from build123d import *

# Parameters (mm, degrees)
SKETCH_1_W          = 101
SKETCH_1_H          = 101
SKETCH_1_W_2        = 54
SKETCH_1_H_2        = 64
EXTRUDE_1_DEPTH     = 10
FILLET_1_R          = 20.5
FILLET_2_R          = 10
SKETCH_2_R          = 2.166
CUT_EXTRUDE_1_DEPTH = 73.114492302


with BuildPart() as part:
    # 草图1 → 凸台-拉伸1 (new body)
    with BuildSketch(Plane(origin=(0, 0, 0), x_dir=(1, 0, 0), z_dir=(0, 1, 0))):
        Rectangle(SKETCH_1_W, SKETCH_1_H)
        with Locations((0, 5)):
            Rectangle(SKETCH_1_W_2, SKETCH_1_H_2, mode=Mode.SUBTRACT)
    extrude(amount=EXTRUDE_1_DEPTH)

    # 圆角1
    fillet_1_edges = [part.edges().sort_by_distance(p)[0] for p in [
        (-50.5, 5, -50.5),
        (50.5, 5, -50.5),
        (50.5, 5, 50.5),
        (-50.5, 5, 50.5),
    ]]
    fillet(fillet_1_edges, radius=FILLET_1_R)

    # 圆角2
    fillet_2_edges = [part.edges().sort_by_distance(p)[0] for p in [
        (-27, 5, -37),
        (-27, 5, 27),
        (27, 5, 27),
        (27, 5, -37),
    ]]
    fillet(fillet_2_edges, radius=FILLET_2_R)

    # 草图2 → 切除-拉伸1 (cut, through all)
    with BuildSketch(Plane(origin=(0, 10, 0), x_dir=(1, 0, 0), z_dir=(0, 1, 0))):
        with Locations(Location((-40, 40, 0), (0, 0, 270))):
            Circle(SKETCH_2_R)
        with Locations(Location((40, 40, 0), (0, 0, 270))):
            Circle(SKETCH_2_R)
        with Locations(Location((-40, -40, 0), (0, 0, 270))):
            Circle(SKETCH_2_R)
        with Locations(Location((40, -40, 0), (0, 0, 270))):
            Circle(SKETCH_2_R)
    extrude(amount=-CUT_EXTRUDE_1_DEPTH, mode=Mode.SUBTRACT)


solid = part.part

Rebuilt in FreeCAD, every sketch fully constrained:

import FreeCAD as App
import Part
import Sketcher
Q = App.Units.Quantity


def edges_at(feature, points):
    """Names of the edges that pass closest to the given points."""
    edges = feature.Shape.Edges
    near = lambda p: min(range(len(edges)), key=lambda i: edges[i].distToShape(Part.Vertex(*p))[0])
    return sorted({f"Edge{near(p) + 1}" for p in points})


def add_polygon(sketch, points):
    """Adds a closed chain of lines whose ends are joined by coincident constraints."""
    first, n = sketch.GeometryCount, len(points)
    for a, b in zip(points, points[1:] + points[:1]):
        sketch.addGeometry(Part.LineSegment(App.Vector(*a, 0), App.Vector(*b, 0)), False)
    for i in range(n):
        sketch.addConstraint(Sketcher.Constraint("Coincident", first + i, 2, first + (i + 1) % n, 1))

doc = App.newDocument("Part")
body = doc.addObject("PartDesign::Body", "Body")

sketch1 = body.newObject("Sketcher::SketchObject", "Sketch")
sketch1.AttachmentSupport = (doc.getObject("XZ_Plane"), [""])
sketch1.MapMode = "FlatFace"
add_polygon(sketch1, [(-50.5, -50.5), (-50.5, 50.5), (50.5, 50.5), (50.5, -50.5)])
add_polygon(sketch1, [(27, 27), (-27, 27), (-27, -37), (27, -37)])
sketch1.addConstraint(Sketcher.Constraint("Vertical", 0))
sketch1.addConstraint(Sketcher.Constraint("Horizontal", 1))
sketch1.addConstraint(Sketcher.Constraint("Vertical", 2))
sketch1.addConstraint(Sketcher.Constraint("Horizontal", 3))
sketch1.addConstraint(Sketcher.Constraint("Horizontal", 4))
sketch1.addConstraint(Sketcher.Constraint("Vertical", 5))
sketch1.addConstraint(Sketcher.Constraint("Horizontal", 6))
sketch1.addConstraint(Sketcher.Constraint("Vertical", 7))
sketch1.addConstraint(Sketcher.Constraint("Symmetric", 0, 2, 2, 2, -1, 1))
sketch1.addConstraint(Sketcher.Constraint("Equal", 3, 0))
sketch1.addConstraint(Sketcher.Constraint("DistanceX", 1, 1, 1, 2, Q("101 mm")))
sketch1.addConstraint(Sketcher.Constraint("DistanceX", 4, 2, 4, 1, Q("54 mm")))
sketch1.addConstraint(Sketcher.Constraint("DistanceY", 5, 2, 5, 1, Q("64 mm")))
sketch1.addConstraint(Sketcher.Constraint("DistanceX", 4, 2, -1, 1, Q("27 mm")))
sketch1.addConstraint(Sketcher.Constraint("DistanceY", -1, 1, 4, 2, Q("27 mm")))
pad1 = body.newObject("PartDesign::Pad", "Pad")
pad1.Profile = sketch1
pad1.Length = 10
pad1.Reversed = True
doc.recompute()

fillet = body.newObject("PartDesign::Fillet", "Fillet")
fillet.Base = (pad1, edges_at(pad1, [
    (-50.5, 5, -50.5),
    (50.5, 5, -50.5),
    (50.5, 5, 50.5),
    (-50.5, 5, 50.5),
]))
fillet.Radius = 20.5
doc.recompute()

fillet2 = body.newObject("PartDesign::Fillet", "Fillet001")
fillet2.Base = (fillet, edges_at(fillet, [
    (-27, 5, -37),
    (-27, 5, 27),
    (27, 5, 27),
    (27, 5, -37),
]))
fillet2.Radius = 10

sketch2 = body.newObject("Sketcher::SketchObject", "Sketch001")
sketch2.AttachmentSupport = (doc.getObject("XZ_Plane"), [""])
sketch2.MapMode = "FlatFace"
sketch2.AttachmentOffset = App.Placement(App.Vector(0, 0, -10), App.Rotation())
sketch2.addGeometry(Part.Circle(App.Vector(-40, -40, 0), App.Vector(0, 0, 1), 2.166), False)
sketch2.addGeometry(Part.Circle(App.Vector(40, -40, 0), App.Vector(0, 0, 1), 2.166), False)
sketch2.addGeometry(Part.Circle(App.Vector(-40, 40, 0), App.Vector(0, 0, 1), 2.166), False)
sketch2.addGeometry(Part.Circle(App.Vector(40, 40, 0), App.Vector(0, 0, 1), 2.166), False)
sketch2.addConstraint(Sketcher.Constraint("Equal", 0, 1))
sketch2.addConstraint(Sketcher.Constraint("Equal", 1, 2))
sketch2.addConstraint(Sketcher.Constraint("Equal", 2, 3))
sketch2.addConstraint(Sketcher.Constraint("Symmetric", 1, 3, 2, 3, -1, 1))
sketch2.addConstraint(Sketcher.Constraint("Symmetric", 0, 3, 3, 3, -1, 1))
sketch2.addConstraint(Sketcher.Constraint("Symmetric", 0, 3, 1, 3, -2))
sketch2.addConstraint(Sketcher.Constraint("Diameter", 0, Q("4.332 mm")))
sketch2.addConstraint(Sketcher.Constraint("DistanceX", 0, 3, -1, 1, Q("40 mm")))
sketch2.addConstraint(Sketcher.Constraint("DistanceY", 0, 3, -1, 1, Q("40 mm")))
pocket1 = body.newObject("PartDesign::Pocket", "Pocket")
pocket1.Profile = sketch2
pocket1.Type = "ThroughAll"
pocket1.Reversed = True

doc.recompute()
